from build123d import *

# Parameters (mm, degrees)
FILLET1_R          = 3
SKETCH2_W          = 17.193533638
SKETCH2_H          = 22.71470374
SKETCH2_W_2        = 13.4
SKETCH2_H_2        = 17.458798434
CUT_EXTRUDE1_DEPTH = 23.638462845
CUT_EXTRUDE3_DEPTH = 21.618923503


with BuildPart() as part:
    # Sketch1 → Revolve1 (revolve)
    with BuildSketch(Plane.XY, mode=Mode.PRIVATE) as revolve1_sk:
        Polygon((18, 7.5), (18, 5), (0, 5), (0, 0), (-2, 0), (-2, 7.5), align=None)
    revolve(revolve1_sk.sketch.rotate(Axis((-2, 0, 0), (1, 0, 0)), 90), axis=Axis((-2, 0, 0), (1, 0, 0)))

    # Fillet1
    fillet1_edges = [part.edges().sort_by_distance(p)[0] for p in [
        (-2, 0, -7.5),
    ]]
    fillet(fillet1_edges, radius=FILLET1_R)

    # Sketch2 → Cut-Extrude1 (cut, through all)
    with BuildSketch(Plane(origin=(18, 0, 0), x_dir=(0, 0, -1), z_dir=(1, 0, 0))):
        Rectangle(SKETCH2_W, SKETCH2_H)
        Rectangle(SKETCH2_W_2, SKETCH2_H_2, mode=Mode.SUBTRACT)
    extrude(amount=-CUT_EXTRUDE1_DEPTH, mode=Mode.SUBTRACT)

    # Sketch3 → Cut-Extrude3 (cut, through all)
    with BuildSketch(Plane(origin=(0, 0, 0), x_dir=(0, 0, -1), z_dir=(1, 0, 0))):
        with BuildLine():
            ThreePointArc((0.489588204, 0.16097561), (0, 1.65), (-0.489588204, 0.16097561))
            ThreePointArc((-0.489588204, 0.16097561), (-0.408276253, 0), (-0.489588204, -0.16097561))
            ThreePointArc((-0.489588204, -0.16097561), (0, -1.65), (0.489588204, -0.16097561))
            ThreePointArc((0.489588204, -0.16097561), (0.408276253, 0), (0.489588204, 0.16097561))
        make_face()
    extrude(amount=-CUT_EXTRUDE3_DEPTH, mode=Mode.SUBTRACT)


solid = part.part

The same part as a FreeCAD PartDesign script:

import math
import FreeCAD as App
import Part
import Sketcher
from FreeCAD import Vector


def edges_at(feature, points):
    """Names of the edges that pass closest to the given points."""
    edges = feature.Shape.Edges
    near = lambda p: min(range(len(edges)), key=lambda i: edges[i].distToShape(Part.Vertex(*p))[0])
    return sorted({f"Edge{near(p) + 1}" for p in points})

doc = App.newDocument("Part")
body = doc.addObject("PartDesign::Body", "Body")

sketch1 = body.newObject("Sketcher::SketchObject", "Sketch")
sketch1.AttachmentSupport = (doc.getObject("XY_Plane"), [""])
sketch1.MapMode = "FlatFace"
sketch1.addGeometry(Part.LineSegment(Vector(18, 5, 0), Vector(18, 7.5, 0)), False)
sketch1.addGeometry(Part.LineSegment(Vector(18, 7.5, 0), Vector(-2, 7.5, 0)), False)
sketch1.addGeometry(Part.LineSegment(Vector(-2, 7.5, 0), Vector(-2, 0, 0)), False)
sketch1.addGeometry(Part.LineSegment(Vector(-2, 0, 0), Vector(0, 0, 0)), False)
sketch1.addGeometry(Part.LineSegment(Vector(0, 0, 0), Vector(0, 5, 0)), False)
sketch1.addGeometry(Part.LineSegment(Vector(0, 5, 0), Vector(18, 5, 0)), False)
sketch1.addConstraint(Sketcher.Constraint("Coincident", 0, 2, 1, 1))
sketch1.addConstraint(Sketcher.Constraint("Coincident", 1, 2, 2, 1))
sketch1.addConstraint(Sketcher.Constraint("Coincident", 2, 2, 3, 1))
sketch1.addConstraint(Sketcher.Constraint("Coincident", 3, 2, 4, 1))
sketch1.addConstraint(Sketcher.Constraint("Coincident", 4, 2, 5, 1))
sketch1.addConstraint(Sketcher.Constraint("Coincident", 5, 2, 0, 1))
sketch1.addConstraint(Sketcher.Constraint("Vertical", 0))
sketch1.addConstraint(Sketcher.Constraint("Horizontal", 1))
sketch1.addConstraint(Sketcher.Constraint("Vertical", 2))
sketch1.addConstraint(Sketcher.Constraint("Horizontal", 3))
sketch1.addConstraint(Sketcher.Constraint("Vertical", 4))
sketch1.addConstraint(Sketcher.Constraint("Horizontal", 5))
sketch1.addConstraint(Sketcher.Constraint("Coincident", 3, 2, -1, 1))
sketch1.addConstraint(Sketcher.Constraint("DistanceX", 1, 2, 1, 1, 20.0))
sketch1.addConstraint(Sketcher.Constraint("DistanceX", 3, 1, 3, 2, 2.0))
sketch1.addConstraint(Sketcher.Constraint("DistanceY", 4, 1, 4, 2, 5.0))
sketch1.addConstraint(Sketcher.Constraint("DistanceY", 0, 1, 0, 2, 2.5))
revolution = body.newObject("PartDesign::Revolution", "Revolution")
revolution.Profile = sketch1
revolution.ReferenceAxis = (sketch1, ["H_Axis"])
revolution.Angle = 360
doc.recompute()

fillet = body.newObject("PartDesign::Fillet", "Fillet")
fillet.Base = (revolution, edges_at(revolution, [(-2, 0, -7.5)]))
fillet.Radius = 3

sketch2 = body.newObject("Sketcher::SketchObject", "Sketch001")
sketch2.AttachmentSupport = (doc.getObject("YZ_Plane"), [""])
sketch2.MapMode = "FlatFace"
sketch2.AttachmentOffset = App.Placement(Vector(0, 0, 18), App.Rotation())
sketch2.addGeometry(Part.LineSegment(Vector(11, 9, 0), Vector(-11, 9, 0)), False)
sketch2.addGeometry(Part.LineSegment(Vector(-11, 9, 0), Vector(-11, -9, 0)), False)
sketch2.addGeometry(Part.LineSegment(Vector(-11, -9, 0), Vector(11, -9, 0)), False)
sketch2.addGeometry(Part.LineSegment(Vector(11, -9, 0), Vector(11, 9, 0)), False)
sketch2.addGeometry(Part.LineSegment(Vector(-9, -7, 0), Vector(-9, 7, 0)), False)
sketch2.addGeometry(Part.LineSegment(Vector(-9, 7, 0), Vector(9, 7, 0)), False)
sketch2.addGeometry(Part.LineSegment(Vector(9, 7, 0), Vector(9, -7, 0)), False)
sketch2.addGeometry(Part.LineSegment(Vector(9, -7, 0), Vector(-9, -7, 0)), False)
sketch2.addConstraint(Sketcher.Constraint("Coincident", 0, 2, 1, 1))
sketch2.addConstraint(Sketcher.Constraint("Coincident", 1, 2, 2, 1))
sketch2.addConstraint(Sketcher.Constraint("Coincident", 2, 2, 3, 1))
sketch2.addConstraint(Sketcher.Constraint("Coincident", 3, 2, 0, 1))
sketch2.addConstraint(Sketcher.Constraint("Coincident", 4, 2, 5, 1))
sketch2.addConstraint(Sketcher.Constraint("Coincident", 5, 2, 6, 1))
sketch2.addConstraint(Sketcher.Constraint("Coincident", 6, 2, 7, 1))
sketch2.addConstraint(Sketcher.Constraint("Coincident", 7, 2, 4, 1))
sketch2.addConstraint(Sketcher.Constraint("Horizontal", 0))
sketch2.addConstraint(Sketcher.Constraint("Vertical", 1))
sketch2.addConstraint(Sketcher.Constraint("Horizontal", 2))
sketch2.addConstraint(Sketcher.Constraint("Vertical", 3))
sketch2.addConstraint(Sketcher.Constraint("Vertical", 4))
sketch2.addConstraint(Sketcher.Constraint("Horizontal", 5))
sketch2.addConstraint(Sketcher.Constraint("Vertical", 6))
sketch2.addConstraint(Sketcher.Constraint("Horizontal", 7))
sketch2.addConstraint(Sketcher.Constraint("Symmetric", 0, 2, 2, 2, -1, 1))
sketch2.addConstraint(Sketcher.Constraint("Symmetric", 4, 2, 6, 2, -1, 1))
sketch2.addConstraint(Sketcher.Constraint("DistanceY", 4, 1, 4, 2, 13.4))
sketch2.addConstraint(Sketcher.Constraint("DistanceX", 5, 1, 5, 2, 17.458798))
sketch2.addConstraint(Sketcher.Constraint("DistanceX", 0, 2, 0, 1, 22.714704))
sketch2.addConstraint(Sketcher.Constraint("DistanceY", 1, 2, 1, 1, 17.193534))
pocket1 = body.newObject("PartDesign::Pocket", "Pocket")
pocket1.Profile = sketch2
pocket1.Type = "ThroughAll"

sketch3 = body.newObject("Sketcher::SketchObject", "Sketch002")
sketch3.AttachmentSupport = (doc.getObject("YZ_Plane"), [""])
sketch3.MapMode = "FlatFace"
sketch3.addGeometry(Part.ArcOfCircle(Part.Circle(Vector(0.82, 0, 0), Vector(0, 0, 1), 0.82), math.radians(-144), math.radians(144)), False)
sketch3.addGeometry(Part.ArcOfCircle(Part.Circle(Vector(0, 0.61, 0), Vector(0, 0, 1), 0.2), math.radians(-144), math.radians(-36)), False)
sketch3.addGeometry(Part.ArcOfCircle(Part.Circle(Vector(-0.82, 0, 0), Vector(0, 0, 1), 0.82), math.radians(36), math.radians(324)), False)
sketch3.addGeometry(Part.ArcOfCircle(Part.Circle(Vector(0, -0.61, 0), Vector(0, 0, 1), 0.2), math.radians(36), math.radians(144)), False)
sketch3.addConstraint(Sketcher.Constraint("Tangent", 0, 2, 1, 2))
sketch3.addConstraint(Sketcher.Constraint("Tangent", 1, 1, 2, 1))
sketch3.addConstraint(Sketcher.Constraint("Tangent", 2, 2, 3, 2))
sketch3.addConstraint(Sketcher.Constraint("Tangent", 3, 1, 0, 1))
sketch3.addConstraint(Sketcher.Constraint("Equal", 0, 2))
sketch3.addConstraint(Sketcher.Constraint("Equal", 1, 3))
sketch3.addConstraint(Sketcher.Constraint("Symmetric", 0, 3, 2, 3, -1, 1))
sketch3.addConstraint(Sketcher.Constraint("PointOnObject", 0, 3, -1))
sketch3.addConstraint(Sketcher.Constraint("Radius", 1, 0.2))
sketch3.addConstraint(Sketcher.Constraint("Radius", 0, 0.825))
sketch3.addConstraint(Sketcher.Constraint("DistanceX", 2, 3, 0, 3, 1.65))
pocket2 = body.newObject("PartDesign::Pocket", "Pocket001")
pocket2.Profile = sketch3
pocket2.Type = "ThroughAll"

doc.recompute()
